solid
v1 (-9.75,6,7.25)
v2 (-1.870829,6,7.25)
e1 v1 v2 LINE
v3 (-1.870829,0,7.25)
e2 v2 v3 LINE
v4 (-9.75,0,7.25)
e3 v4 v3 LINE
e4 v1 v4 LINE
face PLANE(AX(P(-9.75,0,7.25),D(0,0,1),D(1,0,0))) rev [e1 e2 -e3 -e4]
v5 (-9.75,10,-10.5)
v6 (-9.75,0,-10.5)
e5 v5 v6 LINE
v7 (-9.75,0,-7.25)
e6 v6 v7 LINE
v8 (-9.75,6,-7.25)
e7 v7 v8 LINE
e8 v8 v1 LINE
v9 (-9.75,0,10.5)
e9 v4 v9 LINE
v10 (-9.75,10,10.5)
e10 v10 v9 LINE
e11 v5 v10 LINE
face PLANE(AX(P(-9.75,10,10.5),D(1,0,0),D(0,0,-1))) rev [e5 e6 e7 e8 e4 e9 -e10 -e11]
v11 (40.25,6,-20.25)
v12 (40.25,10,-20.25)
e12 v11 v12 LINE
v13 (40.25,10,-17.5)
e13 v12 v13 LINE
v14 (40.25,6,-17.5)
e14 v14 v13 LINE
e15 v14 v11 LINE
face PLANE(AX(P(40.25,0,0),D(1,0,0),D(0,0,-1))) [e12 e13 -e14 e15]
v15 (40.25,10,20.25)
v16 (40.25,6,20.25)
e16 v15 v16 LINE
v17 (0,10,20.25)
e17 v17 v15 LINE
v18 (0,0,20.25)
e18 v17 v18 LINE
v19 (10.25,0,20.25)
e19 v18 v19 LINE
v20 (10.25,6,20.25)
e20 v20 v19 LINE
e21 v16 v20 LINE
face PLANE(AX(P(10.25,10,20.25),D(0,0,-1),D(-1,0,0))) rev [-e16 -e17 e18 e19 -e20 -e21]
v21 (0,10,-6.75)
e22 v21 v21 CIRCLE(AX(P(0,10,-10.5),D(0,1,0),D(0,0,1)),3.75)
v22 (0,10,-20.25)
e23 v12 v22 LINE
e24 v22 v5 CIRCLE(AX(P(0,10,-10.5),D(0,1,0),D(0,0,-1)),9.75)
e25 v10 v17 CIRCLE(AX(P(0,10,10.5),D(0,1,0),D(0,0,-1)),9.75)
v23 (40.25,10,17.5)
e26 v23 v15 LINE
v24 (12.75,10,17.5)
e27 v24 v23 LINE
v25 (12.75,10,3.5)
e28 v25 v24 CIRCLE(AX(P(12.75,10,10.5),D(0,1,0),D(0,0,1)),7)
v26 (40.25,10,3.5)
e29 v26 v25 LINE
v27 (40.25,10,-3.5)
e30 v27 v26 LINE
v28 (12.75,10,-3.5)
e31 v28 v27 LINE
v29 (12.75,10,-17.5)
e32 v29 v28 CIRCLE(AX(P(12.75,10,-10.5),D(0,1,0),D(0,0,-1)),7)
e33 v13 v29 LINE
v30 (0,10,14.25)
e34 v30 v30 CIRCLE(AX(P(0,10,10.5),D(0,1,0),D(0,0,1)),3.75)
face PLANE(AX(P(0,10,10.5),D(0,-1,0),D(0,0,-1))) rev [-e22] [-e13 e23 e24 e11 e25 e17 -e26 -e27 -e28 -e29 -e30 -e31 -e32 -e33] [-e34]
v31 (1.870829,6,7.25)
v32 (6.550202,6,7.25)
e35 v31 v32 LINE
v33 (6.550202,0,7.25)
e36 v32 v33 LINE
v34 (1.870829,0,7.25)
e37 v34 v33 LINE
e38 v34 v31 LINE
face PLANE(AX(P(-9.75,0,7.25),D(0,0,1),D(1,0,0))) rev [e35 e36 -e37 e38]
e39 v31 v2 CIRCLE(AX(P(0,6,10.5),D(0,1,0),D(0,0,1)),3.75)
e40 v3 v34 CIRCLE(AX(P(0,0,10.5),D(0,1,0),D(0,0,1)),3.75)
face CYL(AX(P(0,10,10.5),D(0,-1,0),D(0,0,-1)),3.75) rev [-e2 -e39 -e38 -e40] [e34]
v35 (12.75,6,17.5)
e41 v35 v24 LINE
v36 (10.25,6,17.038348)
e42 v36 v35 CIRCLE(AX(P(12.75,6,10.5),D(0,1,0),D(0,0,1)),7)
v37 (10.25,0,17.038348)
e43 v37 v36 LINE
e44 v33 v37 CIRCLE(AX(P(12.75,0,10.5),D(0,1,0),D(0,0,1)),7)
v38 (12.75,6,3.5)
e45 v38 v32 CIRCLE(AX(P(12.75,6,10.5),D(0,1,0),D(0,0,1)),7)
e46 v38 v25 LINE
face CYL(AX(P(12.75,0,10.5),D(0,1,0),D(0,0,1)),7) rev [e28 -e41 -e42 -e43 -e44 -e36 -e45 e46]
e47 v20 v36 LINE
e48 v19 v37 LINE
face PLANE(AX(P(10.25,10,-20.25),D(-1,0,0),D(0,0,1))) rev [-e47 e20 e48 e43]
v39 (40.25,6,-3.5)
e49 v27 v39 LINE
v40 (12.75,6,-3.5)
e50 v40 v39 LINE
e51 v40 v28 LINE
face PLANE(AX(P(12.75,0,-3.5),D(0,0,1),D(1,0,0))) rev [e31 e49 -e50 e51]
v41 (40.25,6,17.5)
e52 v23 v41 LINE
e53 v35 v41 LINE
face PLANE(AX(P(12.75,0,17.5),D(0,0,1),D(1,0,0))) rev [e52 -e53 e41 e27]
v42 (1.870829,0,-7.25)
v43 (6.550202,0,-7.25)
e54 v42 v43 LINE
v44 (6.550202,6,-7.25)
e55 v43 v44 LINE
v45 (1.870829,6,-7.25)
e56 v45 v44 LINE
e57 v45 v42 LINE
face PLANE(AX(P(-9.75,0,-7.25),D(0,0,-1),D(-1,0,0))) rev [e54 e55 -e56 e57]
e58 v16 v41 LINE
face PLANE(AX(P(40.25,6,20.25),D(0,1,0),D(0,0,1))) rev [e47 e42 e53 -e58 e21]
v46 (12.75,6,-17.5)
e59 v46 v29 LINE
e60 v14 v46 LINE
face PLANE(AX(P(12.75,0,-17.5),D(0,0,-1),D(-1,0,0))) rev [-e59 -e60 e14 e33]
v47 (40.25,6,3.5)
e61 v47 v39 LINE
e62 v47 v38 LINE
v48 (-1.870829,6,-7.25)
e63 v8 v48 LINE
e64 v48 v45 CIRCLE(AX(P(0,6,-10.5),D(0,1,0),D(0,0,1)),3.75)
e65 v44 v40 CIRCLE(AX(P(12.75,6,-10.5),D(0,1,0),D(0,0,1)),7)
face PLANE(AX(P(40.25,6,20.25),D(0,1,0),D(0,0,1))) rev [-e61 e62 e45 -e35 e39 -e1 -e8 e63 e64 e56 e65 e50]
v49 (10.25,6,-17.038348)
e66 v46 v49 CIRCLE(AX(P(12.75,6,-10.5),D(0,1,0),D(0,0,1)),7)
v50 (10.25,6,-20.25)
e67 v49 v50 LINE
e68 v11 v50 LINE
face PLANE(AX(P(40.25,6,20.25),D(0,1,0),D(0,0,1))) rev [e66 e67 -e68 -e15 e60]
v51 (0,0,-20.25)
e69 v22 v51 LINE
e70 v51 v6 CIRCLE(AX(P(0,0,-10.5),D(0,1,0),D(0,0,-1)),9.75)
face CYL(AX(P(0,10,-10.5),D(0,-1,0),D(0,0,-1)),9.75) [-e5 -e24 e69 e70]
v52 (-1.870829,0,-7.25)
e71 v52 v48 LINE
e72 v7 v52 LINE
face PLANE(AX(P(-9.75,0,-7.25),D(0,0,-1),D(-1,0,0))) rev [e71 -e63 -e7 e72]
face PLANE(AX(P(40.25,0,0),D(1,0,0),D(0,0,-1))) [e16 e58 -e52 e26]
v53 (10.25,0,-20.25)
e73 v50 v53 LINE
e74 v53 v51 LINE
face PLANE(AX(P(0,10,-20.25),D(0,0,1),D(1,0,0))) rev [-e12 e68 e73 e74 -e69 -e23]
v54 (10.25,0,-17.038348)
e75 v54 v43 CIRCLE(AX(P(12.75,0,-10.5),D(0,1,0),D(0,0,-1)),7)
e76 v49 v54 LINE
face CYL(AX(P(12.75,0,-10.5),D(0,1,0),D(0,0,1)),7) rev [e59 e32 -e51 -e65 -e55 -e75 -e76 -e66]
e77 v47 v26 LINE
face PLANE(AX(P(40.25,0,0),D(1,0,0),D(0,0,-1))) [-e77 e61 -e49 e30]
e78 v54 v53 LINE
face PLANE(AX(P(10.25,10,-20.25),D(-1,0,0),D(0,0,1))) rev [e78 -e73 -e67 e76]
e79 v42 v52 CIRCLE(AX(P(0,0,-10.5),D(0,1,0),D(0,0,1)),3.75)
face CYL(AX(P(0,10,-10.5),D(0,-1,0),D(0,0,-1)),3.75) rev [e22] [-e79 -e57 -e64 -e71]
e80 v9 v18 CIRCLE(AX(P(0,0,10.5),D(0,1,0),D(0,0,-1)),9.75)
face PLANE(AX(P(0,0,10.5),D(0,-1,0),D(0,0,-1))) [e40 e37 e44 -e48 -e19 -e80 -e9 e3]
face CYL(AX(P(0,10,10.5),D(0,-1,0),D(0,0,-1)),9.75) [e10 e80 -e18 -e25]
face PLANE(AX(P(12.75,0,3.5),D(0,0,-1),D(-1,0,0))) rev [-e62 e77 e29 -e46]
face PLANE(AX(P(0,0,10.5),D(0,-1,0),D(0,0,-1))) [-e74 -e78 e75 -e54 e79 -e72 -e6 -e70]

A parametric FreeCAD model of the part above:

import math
import FreeCAD as App
import Part
import Sketcher
from FreeCAD import Vector

doc = App.newDocument("Part")
body = doc.addObject("PartDesign::Body", "Body")

sketch1 = body.newObject("Sketcher::SketchObject", "Sketch")
sketch1.AttachmentSupport = (doc.getObject("XZ_Plane"), [""])
sketch1.MapMode = "FlatFace"
sketch1.addGeometry([
    Part.LineSegment(Vector(-9.8, -10.5, 0), Vector(-9.8, 10.5, 0)),
    Part.ArcOfCircle(Part.Circle(Vector(0, 10.5, 0), Vector(0, 0, 1), 9.7), math.radians(90), math.radians(180)),
    Part.LineSegment(Vector(0, 20.2, 0), Vector(10.2, 20.2, 0)),
    Part.LineSegment(Vector(10.2, 20.2, 0), Vector(10.2, -20.2, 0)),
    Part.LineSegment(Vector(10.2, -20.2, 0), Vector(0, -20.2, 0)),
    Part.ArcOfCircle(Part.Circle(Vector(0, -10.5, 0), Vector(0, 0, 1), 9.7), math.radians(180), math.radians(270)),
    Part.Circle(Vector(0, 10.5, 0), Vector(0, 0, 1), 3.8),
    Part.Circle(Vector(0, -10.5, 0), Vector(0, 0, 1), 3.8),
], False)
sketch1.addConstraint([
    Sketcher.Constraint("Tangent", 0, 2, 1, 2),
    Sketcher.Constraint("Tangent", 1, 1, 2, 1),
    Sketcher.Constraint("Coincident", 2, 2, 3, 1),
    Sketcher.Constraint("Coincident", 3, 2, 4, 1),
    Sketcher.Constraint("Tangent", 4, 2, 5, 2),
    Sketcher.Constraint("Tangent", 5, 1, 0, 1),
    Sketcher.Constraint("Vertical", 0),
    Sketcher.Constraint("Horizontal", 2),
    Sketcher.Constraint("Vertical", 3),
    Sketcher.Constraint("Horizontal", 4),
    Sketcher.Constraint("Coincident", 6, 3, 1, 3),
    Sketcher.Constraint("Coincident", 7, 3, 5, 3),
    Sketcher.Constraint("Equal", 1, 5),
    Sketcher.Constraint("Equal", 6, 7),
    Sketcher.Constraint("Symmetric", 1, 3, 5, 3, -1, 1),
    Sketcher.Constraint("Diameter", 6, 7.5),
    Sketcher.Constraint("DistanceY", 0, 1, 0, 2, 21.0),
    Sketcher.Constraint("Radius", 1, 9.75),
    Sketcher.Constraint("DistanceX", 0, 2, 2, 2, 20.0),
])
pad1 = body.newObject("PartDesign::Pad", "Pad")
pad1.Profile = sketch1
pad1.Length = 10
pad1.Reversed = True

sketch2 = body.newObject("Sketcher::SketchObject", "Sketch001")
sketch2.AttachmentSupport = (doc.getObject("YZ_Plane"), [""])
sketch2.MapMode = "FlatFace"
sketch2.AttachmentOffset = App.Placement(Vector(0, 0, 10.25), App.Rotation())
sketch2.addGeometry([
    Part.LineSegment(Vector(10, 20.2, 0), Vector(6, 20.2, 0)),
    Part.LineSegment(Vector(6, 20.2, 0), Vector(6, -20.2, 0)),
    Part.LineSegment(Vector(6, -20.2, 0), Vector(10, -20.2, 0)),
    Part.LineSegment(Vector(10, -20.2, 0), Vector(10, 20.2, 0)),
], False)
sketch2.addConstraint([
    Sketcher.Constraint("Coincident", 0, 2, 1, 1),
    Sketcher.Constraint("Coincident", 1, 2, 2, 1),
    Sketcher.Constraint("Coincident", 2, 2, 3, 1),
    Sketcher.Constraint("Coincident", 3, 2, 0, 1),
    Sketcher.Constraint("Horizontal", 0),
    Sketcher.Constraint("Vertical", 1),
    Sketcher.Constraint("Horizontal", 2),
    Sketcher.Constraint("Vertical", 3),
    Sketcher.Constraint("DistanceX", 0, 2, 0, 1, 4.0),
    Sketcher.Constraint("DistanceY", 1, 2, 1, 1, 40.5),
    Sketcher.Constraint("DistanceX", -1, 1, 0, 2, 6.0),
    Sketcher.Constraint("DistanceY", -1, 1, 0, 2, 20.25),
])
pad2 = body.newObject("PartDesign::Pad", "Pad001")
pad2.Profile = sketch2
pad2.Length = 30

sketch3 = body.newObject("Sketcher::SketchObject", "Sketch002")
sketch3.AttachmentSupport = (doc.getObject("YZ_Plane"), [""])
sketch3.MapMode = "FlatFace"
sketch3.AttachmentOffset = App.Placement(Vector(0, 0, 10.25), App.Rotation())
sketch3.addGeometry([
    Part.LineSegment(Vector(6, 7, 0), Vector(0, 7, 0)),
    Part.LineSegment(Vector(0, 7, 0), Vector(0, -7, 0)),
    Part.LineSegment(Vector(0, -7, 0), Vector(6, -7, 0)),
    Part.LineSegment(Vector(6, -7, 0), Vector(6, 7, 0)),
], False)
sketch3.addConstraint([
    Sketcher.Constraint("Coincident", 0, 2, 1, 1),
    Sketcher.Constraint("Coincident", 1, 2, 2, 1),
    Sketcher.Constraint("Coincident", 2, 2, 3, 1),
    Sketcher.Constraint("Coincident", 3, 2, 0, 1),
    Sketcher.Constraint("Horizontal", 0),
    Sketcher.Constraint("Vertical", 1),
    Sketcher.Constraint("Horizontal", 2),
    Sketcher.Constraint("Vertical", 3),
    Sketcher.Constraint("Symmetric", 0, 2, 1, 2, -1, 1),
    Sketcher.Constraint("DistanceX", 0, 2, 0, 1, 6.0),
    Sketcher.Constraint("DistanceY", 1, 2, 1, 1, 14.5),
])
pocket1 = body.newObject("PartDesign::Pocket", "Pocket")
pocket1.Profile = sketch3
pocket1.Type = "ThroughAll"

sketch4 = body.newObject("Sketcher::SketchObject", "Sketch003")
sketch4.AttachmentSupport = (doc.getObject("XZ_Plane"), [""])
sketch4.MapMode = "FlatFace"
sketch4.AttachmentOffset = App.Placement(Vector(0, 0, -10), App.Rotation())
sketch4.addGeometry([
    Part.LineSegment(Vector(40, 4, 0), Vector(13, 4, 0)),
    Part.ArcOfCircle(Part.Circle(Vector(13, 10, 0), Vector(0, 0, 1), 7), math.radians(90), math.radians(270)),
    Part.LineSegment(Vector(13, 18, 0), Vector(40, 18, 0)),
    Part.ArcOfCircle(Part.Circle(Vector(40, 10, 0), Vector(0, 0, 1), 7), math.radians(-90), math.radians(90)),
    Part.LineSegment(Vector(13, -4, 0), Vector(40, -4, 0)),
    Part.ArcOfCircle(Part.Circle(Vector(40, -10, 0), Vector(0, 0, 1), 7), math.radians(-90), math.radians(90)),
    Part.LineSegment(Vector(40, -18, 0), Vector(13, -18, 0)),
    Part.ArcOfCircle(Part.Circle(Vector(13, -10, 0), Vector(0, 0, 1), 7), math.radians(90), math.radians(270)),
], False)
sketch4.addConstraint([
    Sketcher.Constraint("Tangent", 0, 2, 1, 2),
    Sketcher.Constraint("Tangent", 1, 1, 2, 1),
    Sketcher.Constraint("Tangent", 2, 2, 3, 2),
    Sketcher.Constraint("Tangent", 3, 1, 0, 1),
    Sketcher.Constraint("Tangent", 4, 2, 5, 2),
    Sketcher.Constraint("Tangent", 5, 1, 6, 1),
    Sketcher.Constraint("Tangent", 6, 2, 7, 2),
    Sketcher.Constraint("Tangent", 7, 1, 4, 1),
    Sketcher.Constraint("Horizontal", 0),
    Sketcher.Constraint("Horizontal", 2),
    Sketcher.Constraint("Horizontal", 4),
    Sketcher.Constraint("Horizontal", 6),
    Sketcher.Constraint("Equal", 3, 5),
    Sketcher.Constraint("Symmetric", 3, 3, 5, 3, -1),
    Sketcher.Constraint("Vertical", 1, 3, 7, 3),
    Sketcher.Constraint("Radius", 1, 7.0),
    Sketcher.Constraint("DistanceX", 0, 2, 0, 1, 27.5),
    Sketcher.Constraint("DistanceY", 5, 3, 3, 3, 21.0),
    Sketcher.Constraint("DistanceX", -1, 1, 1, 3, 12.75),
])
pocket2 = body.newObject("PartDesign::Pocket", "Pocket001")
pocket2.Profile = sketch4
pocket2.Type = "ThroughAll"
pocket2.Reversed = True

doc.recompute()
